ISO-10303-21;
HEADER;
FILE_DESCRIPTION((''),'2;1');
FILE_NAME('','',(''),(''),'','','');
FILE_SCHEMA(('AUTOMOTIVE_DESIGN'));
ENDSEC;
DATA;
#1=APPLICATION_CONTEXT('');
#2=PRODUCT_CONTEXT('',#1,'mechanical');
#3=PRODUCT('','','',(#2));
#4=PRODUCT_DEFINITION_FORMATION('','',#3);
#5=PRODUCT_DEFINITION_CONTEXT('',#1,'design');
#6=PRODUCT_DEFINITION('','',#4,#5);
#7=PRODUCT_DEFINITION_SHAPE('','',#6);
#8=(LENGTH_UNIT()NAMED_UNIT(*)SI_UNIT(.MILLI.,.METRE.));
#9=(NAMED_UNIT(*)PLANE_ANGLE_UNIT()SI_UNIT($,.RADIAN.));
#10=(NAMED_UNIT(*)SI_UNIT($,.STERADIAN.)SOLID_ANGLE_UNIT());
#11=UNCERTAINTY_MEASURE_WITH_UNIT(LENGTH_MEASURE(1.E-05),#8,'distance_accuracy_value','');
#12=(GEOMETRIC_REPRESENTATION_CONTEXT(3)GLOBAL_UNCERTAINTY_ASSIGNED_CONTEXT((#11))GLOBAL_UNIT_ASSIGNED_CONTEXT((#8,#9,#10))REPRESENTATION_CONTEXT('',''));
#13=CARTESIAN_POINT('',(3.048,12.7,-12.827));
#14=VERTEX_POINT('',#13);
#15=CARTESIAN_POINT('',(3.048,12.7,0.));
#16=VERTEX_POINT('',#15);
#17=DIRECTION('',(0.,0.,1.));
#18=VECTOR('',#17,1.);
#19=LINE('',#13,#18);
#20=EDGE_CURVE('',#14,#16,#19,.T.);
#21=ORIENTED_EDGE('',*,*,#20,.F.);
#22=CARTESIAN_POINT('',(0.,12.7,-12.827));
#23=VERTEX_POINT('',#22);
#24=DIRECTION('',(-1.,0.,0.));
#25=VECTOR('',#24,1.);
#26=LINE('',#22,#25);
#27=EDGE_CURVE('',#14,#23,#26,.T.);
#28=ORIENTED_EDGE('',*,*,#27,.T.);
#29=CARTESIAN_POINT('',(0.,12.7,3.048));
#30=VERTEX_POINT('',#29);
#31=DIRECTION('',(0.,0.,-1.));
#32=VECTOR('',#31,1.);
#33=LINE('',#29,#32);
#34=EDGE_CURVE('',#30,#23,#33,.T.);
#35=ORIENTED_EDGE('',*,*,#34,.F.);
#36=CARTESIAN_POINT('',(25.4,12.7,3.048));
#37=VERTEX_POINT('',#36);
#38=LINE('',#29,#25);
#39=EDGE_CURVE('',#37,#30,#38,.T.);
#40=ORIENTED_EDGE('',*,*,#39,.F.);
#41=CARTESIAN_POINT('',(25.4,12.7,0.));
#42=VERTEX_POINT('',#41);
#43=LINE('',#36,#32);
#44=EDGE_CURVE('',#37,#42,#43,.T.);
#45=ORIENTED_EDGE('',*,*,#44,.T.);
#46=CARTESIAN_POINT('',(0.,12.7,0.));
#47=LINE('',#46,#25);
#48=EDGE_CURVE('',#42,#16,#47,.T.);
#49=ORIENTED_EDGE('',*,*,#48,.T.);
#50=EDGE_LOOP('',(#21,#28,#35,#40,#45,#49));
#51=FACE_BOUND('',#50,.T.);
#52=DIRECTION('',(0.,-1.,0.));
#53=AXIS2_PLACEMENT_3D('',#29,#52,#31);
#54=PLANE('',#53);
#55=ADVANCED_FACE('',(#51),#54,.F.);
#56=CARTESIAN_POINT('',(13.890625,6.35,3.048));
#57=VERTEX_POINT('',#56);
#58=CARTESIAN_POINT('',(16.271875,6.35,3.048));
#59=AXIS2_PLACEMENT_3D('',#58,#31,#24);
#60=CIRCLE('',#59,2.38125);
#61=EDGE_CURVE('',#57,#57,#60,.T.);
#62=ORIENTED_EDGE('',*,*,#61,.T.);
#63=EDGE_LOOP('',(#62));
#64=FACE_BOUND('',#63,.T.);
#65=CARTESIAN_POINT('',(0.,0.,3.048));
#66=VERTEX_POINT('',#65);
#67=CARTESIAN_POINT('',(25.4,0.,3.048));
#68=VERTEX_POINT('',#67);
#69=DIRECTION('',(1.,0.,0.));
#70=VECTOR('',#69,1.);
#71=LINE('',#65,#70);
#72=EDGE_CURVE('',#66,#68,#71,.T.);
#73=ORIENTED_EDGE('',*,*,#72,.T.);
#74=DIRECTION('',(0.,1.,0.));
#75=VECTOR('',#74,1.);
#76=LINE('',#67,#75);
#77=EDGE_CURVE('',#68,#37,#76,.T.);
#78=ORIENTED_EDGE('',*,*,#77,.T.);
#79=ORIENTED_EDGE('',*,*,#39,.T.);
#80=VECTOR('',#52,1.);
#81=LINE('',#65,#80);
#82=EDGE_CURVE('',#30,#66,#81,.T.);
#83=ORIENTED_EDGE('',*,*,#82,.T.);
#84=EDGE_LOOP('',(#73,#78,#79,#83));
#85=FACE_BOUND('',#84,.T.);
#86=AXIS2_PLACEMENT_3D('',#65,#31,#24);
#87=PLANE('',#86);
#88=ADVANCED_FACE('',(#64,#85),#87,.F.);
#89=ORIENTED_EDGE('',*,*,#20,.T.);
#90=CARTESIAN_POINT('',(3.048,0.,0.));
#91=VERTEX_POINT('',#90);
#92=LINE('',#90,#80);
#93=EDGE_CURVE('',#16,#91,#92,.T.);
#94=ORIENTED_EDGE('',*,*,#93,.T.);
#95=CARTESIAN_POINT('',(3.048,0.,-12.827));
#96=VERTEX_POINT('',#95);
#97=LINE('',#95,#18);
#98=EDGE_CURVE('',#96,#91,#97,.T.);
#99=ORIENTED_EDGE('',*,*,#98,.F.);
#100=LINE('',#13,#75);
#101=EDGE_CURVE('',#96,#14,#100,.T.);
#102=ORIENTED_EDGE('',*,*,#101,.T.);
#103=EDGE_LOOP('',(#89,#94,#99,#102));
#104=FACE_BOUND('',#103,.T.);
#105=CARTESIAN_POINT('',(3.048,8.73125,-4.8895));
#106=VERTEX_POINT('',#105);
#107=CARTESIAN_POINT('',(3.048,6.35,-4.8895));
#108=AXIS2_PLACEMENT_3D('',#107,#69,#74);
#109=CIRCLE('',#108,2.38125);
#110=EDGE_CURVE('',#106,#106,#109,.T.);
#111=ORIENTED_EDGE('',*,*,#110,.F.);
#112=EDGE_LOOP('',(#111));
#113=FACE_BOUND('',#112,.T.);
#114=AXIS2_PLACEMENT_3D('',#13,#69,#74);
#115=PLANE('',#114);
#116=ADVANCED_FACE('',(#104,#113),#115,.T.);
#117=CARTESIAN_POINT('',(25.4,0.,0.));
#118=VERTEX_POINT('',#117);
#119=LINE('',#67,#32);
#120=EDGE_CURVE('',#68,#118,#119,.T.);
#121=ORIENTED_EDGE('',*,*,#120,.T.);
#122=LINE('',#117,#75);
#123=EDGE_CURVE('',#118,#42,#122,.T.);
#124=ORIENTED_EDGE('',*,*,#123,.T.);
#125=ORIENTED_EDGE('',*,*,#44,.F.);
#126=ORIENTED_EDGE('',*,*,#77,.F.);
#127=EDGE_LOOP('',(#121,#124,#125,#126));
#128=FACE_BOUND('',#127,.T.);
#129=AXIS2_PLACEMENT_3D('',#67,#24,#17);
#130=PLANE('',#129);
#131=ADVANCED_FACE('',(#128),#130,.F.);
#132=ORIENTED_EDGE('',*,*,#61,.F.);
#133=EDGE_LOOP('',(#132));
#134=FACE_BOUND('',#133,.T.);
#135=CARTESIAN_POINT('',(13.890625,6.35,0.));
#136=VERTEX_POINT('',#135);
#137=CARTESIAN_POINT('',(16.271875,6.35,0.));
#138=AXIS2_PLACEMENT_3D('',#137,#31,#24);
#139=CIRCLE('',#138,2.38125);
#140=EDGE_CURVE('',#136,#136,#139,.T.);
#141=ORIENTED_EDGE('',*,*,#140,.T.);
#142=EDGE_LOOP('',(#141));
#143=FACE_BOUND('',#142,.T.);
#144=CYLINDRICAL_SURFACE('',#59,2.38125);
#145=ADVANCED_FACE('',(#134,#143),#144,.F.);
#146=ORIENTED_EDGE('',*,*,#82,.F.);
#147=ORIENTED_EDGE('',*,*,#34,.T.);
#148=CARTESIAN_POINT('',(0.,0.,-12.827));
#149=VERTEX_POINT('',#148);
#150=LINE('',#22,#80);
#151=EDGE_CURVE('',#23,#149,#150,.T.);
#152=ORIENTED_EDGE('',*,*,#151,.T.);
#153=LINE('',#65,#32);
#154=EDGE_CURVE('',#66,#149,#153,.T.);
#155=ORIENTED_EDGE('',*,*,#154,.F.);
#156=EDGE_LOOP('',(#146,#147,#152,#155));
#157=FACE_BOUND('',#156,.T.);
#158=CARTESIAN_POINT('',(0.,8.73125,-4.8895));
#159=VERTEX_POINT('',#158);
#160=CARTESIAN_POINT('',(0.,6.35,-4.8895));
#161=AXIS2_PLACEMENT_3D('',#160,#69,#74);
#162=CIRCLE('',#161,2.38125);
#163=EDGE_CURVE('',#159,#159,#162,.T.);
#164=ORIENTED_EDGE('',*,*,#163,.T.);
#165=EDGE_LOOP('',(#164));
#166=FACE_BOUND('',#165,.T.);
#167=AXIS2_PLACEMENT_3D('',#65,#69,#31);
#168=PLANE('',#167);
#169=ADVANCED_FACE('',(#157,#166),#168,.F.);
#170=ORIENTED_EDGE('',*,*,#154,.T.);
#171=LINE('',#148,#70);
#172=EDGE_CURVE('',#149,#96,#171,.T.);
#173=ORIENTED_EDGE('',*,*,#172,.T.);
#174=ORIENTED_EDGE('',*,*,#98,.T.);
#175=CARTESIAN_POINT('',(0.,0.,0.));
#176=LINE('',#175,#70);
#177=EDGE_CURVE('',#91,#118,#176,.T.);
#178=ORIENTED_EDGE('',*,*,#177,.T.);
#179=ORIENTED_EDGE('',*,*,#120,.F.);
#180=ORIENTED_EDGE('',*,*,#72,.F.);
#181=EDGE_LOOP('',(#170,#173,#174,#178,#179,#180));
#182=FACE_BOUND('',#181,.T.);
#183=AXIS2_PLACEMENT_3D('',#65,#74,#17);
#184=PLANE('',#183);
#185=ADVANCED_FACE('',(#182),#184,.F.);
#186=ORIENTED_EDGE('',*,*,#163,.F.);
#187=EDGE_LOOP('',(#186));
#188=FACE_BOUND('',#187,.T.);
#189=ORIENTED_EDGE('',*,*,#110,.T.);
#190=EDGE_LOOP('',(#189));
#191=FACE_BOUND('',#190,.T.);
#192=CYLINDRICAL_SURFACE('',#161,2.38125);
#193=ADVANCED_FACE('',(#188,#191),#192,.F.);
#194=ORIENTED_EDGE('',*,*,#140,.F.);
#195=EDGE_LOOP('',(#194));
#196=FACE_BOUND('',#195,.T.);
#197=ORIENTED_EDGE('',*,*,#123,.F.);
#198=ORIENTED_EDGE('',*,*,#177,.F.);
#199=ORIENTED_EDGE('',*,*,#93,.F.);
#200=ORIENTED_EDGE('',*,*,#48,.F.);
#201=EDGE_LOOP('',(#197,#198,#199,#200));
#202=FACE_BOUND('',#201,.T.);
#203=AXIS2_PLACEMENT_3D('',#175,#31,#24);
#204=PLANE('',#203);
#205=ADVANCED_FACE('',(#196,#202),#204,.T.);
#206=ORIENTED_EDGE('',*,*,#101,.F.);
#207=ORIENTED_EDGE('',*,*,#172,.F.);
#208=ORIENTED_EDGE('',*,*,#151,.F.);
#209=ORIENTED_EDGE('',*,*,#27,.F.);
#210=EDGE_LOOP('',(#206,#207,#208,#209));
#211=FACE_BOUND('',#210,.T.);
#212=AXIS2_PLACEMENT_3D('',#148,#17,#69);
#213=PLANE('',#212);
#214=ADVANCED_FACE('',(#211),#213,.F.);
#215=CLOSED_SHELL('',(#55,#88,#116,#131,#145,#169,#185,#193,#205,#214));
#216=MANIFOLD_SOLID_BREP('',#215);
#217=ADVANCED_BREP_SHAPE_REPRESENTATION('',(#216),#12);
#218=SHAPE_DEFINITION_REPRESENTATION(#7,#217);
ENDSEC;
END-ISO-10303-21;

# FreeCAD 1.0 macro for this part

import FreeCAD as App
import Part
import Sketcher

V = App.Vector
Q = App.Units.Quantity


def add_polygon(sketch, points):
    """Adds a closed chain of lines whose ends are joined by coincident constraints."""
    first, n = sketch.GeometryCount, len(points)
    for a, b in zip(points, points[1:] + points[:1]):
        sketch.addGeometry(Part.LineSegment(App.Vector(*a, 0), App.Vector(*b, 0)), False)
    for i in range(n):
        sketch.addConstraint(Sketcher.Constraint("Coincident", first + i, 2, first + (i + 1) % n, 1))

doc = App.newDocument("Part")
body = doc.addObject("PartDesign::Body", "Body")

# Sketch on XY plane
sketch1 = body.newObject("Sketcher::SketchObject", "Sketch")
sketch1.AttachmentSupport = (doc.getObject("XY_Plane"), [""])
sketch1.MapMode = "FlatFace"
add_polygon(sketch1, [(0, 12.7), (0, 0), (25.4, 0), (25.4, 12.7)])  # lines 0-3
sketch1.addConstraint(Sketcher.Constraint("Vertical", 0))
sketch1.addConstraint(Sketcher.Constraint("Horizontal", 1))
sketch1.addConstraint(Sketcher.Constraint("Vertical", 2))
sketch1.addConstraint(Sketcher.Constraint("Horizontal", 3))
sketch1.addConstraint(Sketcher.Constraint("Coincident", 0, 2, -1, 1))
sketch1.addConstraint(Sketcher.Constraint("DistanceX", 1, 1, 1, 2, Q("1 in")))
sketch1.addConstraint(Sketcher.Constraint("DistanceY", 0, 2, 0, 1, Q("0.5 in")))
pad1 = body.newObject("PartDesign::Pad", "Pad")
pad1.Profile = sketch1
pad1.Length = Q("0.12 in")

# Sketch on XY plane
sketch2 = body.newObject("Sketcher::SketchObject", "Sketch001")
sketch2.AttachmentSupport = (doc.getObject("XY_Plane"), [""])
sketch2.MapMode = "FlatFace"
sketch2.AttachmentOffset = App.Placement(V(0, 0, 0.12 * 25.4), App.Rotation())
add_polygon(sketch2, [(0, 12.7), (0, 0), (3.048, 0), (3.048, 12.7)])  # lines 0-3
sketch2.addConstraint(Sketcher.Constraint("Vertical", 0))
sketch2.addConstraint(Sketcher.Constraint("Horizontal", 1))
sketch2.addConstraint(Sketcher.Constraint("Vertical", 2))
sketch2.addConstraint(Sketcher.Constraint("Horizontal", 3))
sketch2.addConstraint(Sketcher.Constraint("Coincident", 0, 2, -1, 1))
sketch2.addConstraint(Sketcher.Constraint("DistanceY", 0, 2, 0, 1, Q("0.5 in")))
sketch2.addConstraint(Sketcher.Constraint("DistanceX", 1, 1, 1, 2, Q("0.12 in")))
pad2 = body.newObject("PartDesign::Pad", "Pad001")
pad2.Profile = sketch2
pad2.Length = Q("0.625 in")
pad2.Reversed = True

# Sketch on XY plane
sketch3 = body.newObject("Sketcher::SketchObject", "Sketch002")
sketch3.AttachmentSupport = (doc.getObject("XY_Plane"), [""])
sketch3.MapMode = "FlatFace"
sketch3.addGeometry(Part.Circle(V(16.271875, 6.35, 0), V(0, 0, 1), 2.38125), False)
sketch3.addConstraint(Sketcher.Constraint("Diameter", 0, Q("0.1875 in")))
sketch3.addConstraint(Sketcher.Constraint("DistanceY", -1, 1, 0, 3, Q("0.25 in")))
sketch3.addConstraint(Sketcher.Constraint("DistanceX", -1, 1, 0, 3, Q("0.640625 in")))
pocket1 = body.newObject("PartDesign::Pocket", "Pocket")
pocket1.Profile = sketch3
pocket1.Type = "ThroughAll"
pocket1.Reversed = True

# Sketch on YZ plane
sketch4 = body.newObject("Sketcher::SketchObject", "Sketch003")
sketch4.AttachmentSupport = (doc.getObject("YZ_Plane"), [""])
sketch4.MapMode = "FlatFace"
sketch4.AttachmentOffset = App.Placement(V(0, 0, 0.12 * 25.4), App.Rotation())
sketch4.addGeometry(Part.Circle(V(6.35, -4.8895, 0), V(0, 0, 1), 2.38125), False)
sketch4.addConstraint(Sketcher.Constraint("Diameter", 0, Q("0.1875 in")))
sketch4.addConstraint(Sketcher.Constraint("DistanceX", -1, 1, 0, 3, Q("0.25 in")))
sketch4.addConstraint(Sketcher.Constraint("DistanceY", 0, 3, -1, 1, Q("0.1925 in")))
pocket2 = body.newObject("PartDesign::Pocket", "Pocket001")
pocket2.Profile = sketch4
pocket2.Type = "ThroughAll"

doc.recompute()
